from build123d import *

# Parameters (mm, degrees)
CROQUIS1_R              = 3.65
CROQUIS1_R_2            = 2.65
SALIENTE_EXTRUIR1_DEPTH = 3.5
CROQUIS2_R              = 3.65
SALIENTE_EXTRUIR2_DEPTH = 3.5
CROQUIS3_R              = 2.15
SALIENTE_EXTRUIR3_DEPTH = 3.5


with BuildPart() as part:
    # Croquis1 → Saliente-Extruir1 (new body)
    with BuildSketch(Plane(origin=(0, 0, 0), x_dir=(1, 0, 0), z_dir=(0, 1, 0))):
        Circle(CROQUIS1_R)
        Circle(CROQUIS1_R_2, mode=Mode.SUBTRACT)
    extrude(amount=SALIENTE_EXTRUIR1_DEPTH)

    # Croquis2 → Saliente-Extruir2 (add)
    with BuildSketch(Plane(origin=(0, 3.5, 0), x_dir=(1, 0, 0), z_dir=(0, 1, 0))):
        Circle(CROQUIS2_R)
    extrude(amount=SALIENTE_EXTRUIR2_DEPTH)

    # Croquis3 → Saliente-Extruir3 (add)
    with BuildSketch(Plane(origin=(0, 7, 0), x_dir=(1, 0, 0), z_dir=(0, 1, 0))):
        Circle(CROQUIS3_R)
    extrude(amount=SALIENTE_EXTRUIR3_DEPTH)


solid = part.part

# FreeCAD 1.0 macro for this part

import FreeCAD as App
import Part
import Sketcher
from FreeCAD import Vector
Q = App.Units.Quantity

doc = App.newDocument("Part")
body = doc.addObject("PartDesign::Body", "Body")

# Sketch on XZ plane
sketch1 = doc.addObject("Sketcher::SketchObject", "Sketch")
body.addObject(sketch1)
sketch1.AttachmentSupport = (doc.XZ_Plane, [""])
sketch1.MapMode = "FlatFace"
sketch1.addGeometry([
    Part.Circle(Vector(0, 0, 0), Vector(0, 0, 1), 3.6),
    Part.Circle(Vector(0, 0, 0), Vector(0, 0, 1), 2.6),
], False)
sketch1.addConstraint([
    Sketcher.Constraint("Coincident", 0, 3, -1, 1),
    Sketcher.Constraint("Coincident", 1, 3, -1, 1),
    Sketcher.Constraint("Diameter", 0, Q("7.3 mm")),
    Sketcher.Constraint("Diameter", 1, Q("5.3 mm")),
])
pad1 = doc.addObject("PartDesign::Pad", "Pad")
body.addObject(pad1)
pad1.Profile = sketch1
pad1.Length = 3.5
pad1.Reversed = True

# Sketch on XZ plane
sketch2 = doc.addObject("Sketcher::SketchObject", "Sketch001")
body.addObject(sketch2)
sketch2.AttachmentSupport = (doc.XZ_Plane, [""])
sketch2.MapMode = "FlatFace"
sketch2.AttachmentOffset = App.Placement(Vector(0, 0, -3.5), App.Rotation())
sketch2.addGeometry(Part.Circle(Vector(0, 0, 0), Vector(0, 0, 1), 3.6), False)
sketch2.addConstraint([
    Sketcher.Constraint("Coincident", 0, 3, -1, 1),
    Sketcher.Constraint("Diameter", 0, Q("7.3 mm")),
])
pad2 = doc.addObject("PartDesign::Pad", "Pad001")
body.addObject(pad2)
pad2.Profile = sketch2
pad2.Length = 3.5
pad2.Reversed = True

# Sketch on XZ plane
sketch3 = doc.addObject("Sketcher::SketchObject", "Sketch002")
body.addObject(sketch3)
sketch3.AttachmentSupport = (doc.XZ_Plane, [""])
sketch3.MapMode = "FlatFace"
sketch3.AttachmentOffset = App.Placement(Vector(0, 0, -7), App.Rotation())
sketch3.addGeometry(Part.Circle(Vector(0, 0, 0), Vector(0, 0, 1), 2.1), False)
sketch3.addConstraint([
    Sketcher.Constraint("Coincident", 0, 3, -1, 1),
    Sketcher.Constraint("Diameter", 0, Q("4.3 mm")),
])
pad3 = doc.addObject("PartDesign::Pad", "Pad002")
body.addObject(pad3)
pad3.Profile = sketch3
pad3.Length = 3.5
pad3.Reversed = True

doc.recompute()
